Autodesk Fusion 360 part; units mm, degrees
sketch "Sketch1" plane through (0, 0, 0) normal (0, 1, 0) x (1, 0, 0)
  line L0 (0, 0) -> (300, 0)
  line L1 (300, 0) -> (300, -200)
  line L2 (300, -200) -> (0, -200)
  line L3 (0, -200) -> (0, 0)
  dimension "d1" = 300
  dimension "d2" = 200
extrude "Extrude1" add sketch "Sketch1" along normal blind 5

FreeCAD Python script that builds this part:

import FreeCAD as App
import Part
import Sketcher
Q = App.Units.Quantity


def add_polygon(sketch, points):
    """Adds a closed chain of lines whose ends are joined by coincident constraints."""
    first, n = sketch.GeometryCount, len(points)
    for a, b in zip(points, points[1:] + points[:1]):
        sketch.addGeometry(Part.LineSegment(App.Vector(*a, 0), App.Vector(*b, 0)), False)
    for i in range(n):
        sketch.addConstraint(Sketcher.Constraint("Coincident", first + i, 2, first + (i + 1) % n, 1))

doc = App.newDocument("Part")
params = doc.addObject("Spreadsheet::Sheet", "Params")
for row, (alias, value) in enumerate([
    ("sketch1_width", "300 mm"),
    ("sketch1_height", "200 mm"),
    ("pad1_length", "5 mm"),
], start=1):
    params.set(f"A{row}", alias)
    params.set(f"B{row}", "=" + value)
    params.setAlias(f"B{row}", alias)

body = doc.addObject("PartDesign::Body", "Body")

sketch1 = body.newObject("Sketcher::SketchObject", "Sketch")
sketch1.AttachmentSupport = (doc.getObject("XZ_Plane"), [""])
sketch1.MapMode = "FlatFace"
add_polygon(sketch1, [(300, 0), (0, 0), (0, 200), (300, 200)])
sketch1.addConstraint([
    Sketcher.Constraint("Horizontal", 0),
    Sketcher.Constraint("Vertical", 1),
    Sketcher.Constraint("Horizontal", 2),
    Sketcher.Constraint("Vertical", 3),
    Sketcher.Constraint("Coincident", 0, 2, -1, 1),
    Sketcher.Constraint("DistanceX", 0, 2, 0, 1, Q("300 mm")),
    Sketcher.Constraint("DistanceY", 1, 1, 1, 2, Q("200 mm")),
])
sketch1.setExpression("Constraints[9]", "Params.sketch1_width")
sketch1.setExpression("Constraints[10]", "Params.sketch1_height")
pad1 = body.newObject("PartDesign::Pad", "Pad")
pad1.Profile = sketch1
pad1.setExpression("Length", "Params.pad1_length")
pad1.Reversed = True

doc.recompute()
